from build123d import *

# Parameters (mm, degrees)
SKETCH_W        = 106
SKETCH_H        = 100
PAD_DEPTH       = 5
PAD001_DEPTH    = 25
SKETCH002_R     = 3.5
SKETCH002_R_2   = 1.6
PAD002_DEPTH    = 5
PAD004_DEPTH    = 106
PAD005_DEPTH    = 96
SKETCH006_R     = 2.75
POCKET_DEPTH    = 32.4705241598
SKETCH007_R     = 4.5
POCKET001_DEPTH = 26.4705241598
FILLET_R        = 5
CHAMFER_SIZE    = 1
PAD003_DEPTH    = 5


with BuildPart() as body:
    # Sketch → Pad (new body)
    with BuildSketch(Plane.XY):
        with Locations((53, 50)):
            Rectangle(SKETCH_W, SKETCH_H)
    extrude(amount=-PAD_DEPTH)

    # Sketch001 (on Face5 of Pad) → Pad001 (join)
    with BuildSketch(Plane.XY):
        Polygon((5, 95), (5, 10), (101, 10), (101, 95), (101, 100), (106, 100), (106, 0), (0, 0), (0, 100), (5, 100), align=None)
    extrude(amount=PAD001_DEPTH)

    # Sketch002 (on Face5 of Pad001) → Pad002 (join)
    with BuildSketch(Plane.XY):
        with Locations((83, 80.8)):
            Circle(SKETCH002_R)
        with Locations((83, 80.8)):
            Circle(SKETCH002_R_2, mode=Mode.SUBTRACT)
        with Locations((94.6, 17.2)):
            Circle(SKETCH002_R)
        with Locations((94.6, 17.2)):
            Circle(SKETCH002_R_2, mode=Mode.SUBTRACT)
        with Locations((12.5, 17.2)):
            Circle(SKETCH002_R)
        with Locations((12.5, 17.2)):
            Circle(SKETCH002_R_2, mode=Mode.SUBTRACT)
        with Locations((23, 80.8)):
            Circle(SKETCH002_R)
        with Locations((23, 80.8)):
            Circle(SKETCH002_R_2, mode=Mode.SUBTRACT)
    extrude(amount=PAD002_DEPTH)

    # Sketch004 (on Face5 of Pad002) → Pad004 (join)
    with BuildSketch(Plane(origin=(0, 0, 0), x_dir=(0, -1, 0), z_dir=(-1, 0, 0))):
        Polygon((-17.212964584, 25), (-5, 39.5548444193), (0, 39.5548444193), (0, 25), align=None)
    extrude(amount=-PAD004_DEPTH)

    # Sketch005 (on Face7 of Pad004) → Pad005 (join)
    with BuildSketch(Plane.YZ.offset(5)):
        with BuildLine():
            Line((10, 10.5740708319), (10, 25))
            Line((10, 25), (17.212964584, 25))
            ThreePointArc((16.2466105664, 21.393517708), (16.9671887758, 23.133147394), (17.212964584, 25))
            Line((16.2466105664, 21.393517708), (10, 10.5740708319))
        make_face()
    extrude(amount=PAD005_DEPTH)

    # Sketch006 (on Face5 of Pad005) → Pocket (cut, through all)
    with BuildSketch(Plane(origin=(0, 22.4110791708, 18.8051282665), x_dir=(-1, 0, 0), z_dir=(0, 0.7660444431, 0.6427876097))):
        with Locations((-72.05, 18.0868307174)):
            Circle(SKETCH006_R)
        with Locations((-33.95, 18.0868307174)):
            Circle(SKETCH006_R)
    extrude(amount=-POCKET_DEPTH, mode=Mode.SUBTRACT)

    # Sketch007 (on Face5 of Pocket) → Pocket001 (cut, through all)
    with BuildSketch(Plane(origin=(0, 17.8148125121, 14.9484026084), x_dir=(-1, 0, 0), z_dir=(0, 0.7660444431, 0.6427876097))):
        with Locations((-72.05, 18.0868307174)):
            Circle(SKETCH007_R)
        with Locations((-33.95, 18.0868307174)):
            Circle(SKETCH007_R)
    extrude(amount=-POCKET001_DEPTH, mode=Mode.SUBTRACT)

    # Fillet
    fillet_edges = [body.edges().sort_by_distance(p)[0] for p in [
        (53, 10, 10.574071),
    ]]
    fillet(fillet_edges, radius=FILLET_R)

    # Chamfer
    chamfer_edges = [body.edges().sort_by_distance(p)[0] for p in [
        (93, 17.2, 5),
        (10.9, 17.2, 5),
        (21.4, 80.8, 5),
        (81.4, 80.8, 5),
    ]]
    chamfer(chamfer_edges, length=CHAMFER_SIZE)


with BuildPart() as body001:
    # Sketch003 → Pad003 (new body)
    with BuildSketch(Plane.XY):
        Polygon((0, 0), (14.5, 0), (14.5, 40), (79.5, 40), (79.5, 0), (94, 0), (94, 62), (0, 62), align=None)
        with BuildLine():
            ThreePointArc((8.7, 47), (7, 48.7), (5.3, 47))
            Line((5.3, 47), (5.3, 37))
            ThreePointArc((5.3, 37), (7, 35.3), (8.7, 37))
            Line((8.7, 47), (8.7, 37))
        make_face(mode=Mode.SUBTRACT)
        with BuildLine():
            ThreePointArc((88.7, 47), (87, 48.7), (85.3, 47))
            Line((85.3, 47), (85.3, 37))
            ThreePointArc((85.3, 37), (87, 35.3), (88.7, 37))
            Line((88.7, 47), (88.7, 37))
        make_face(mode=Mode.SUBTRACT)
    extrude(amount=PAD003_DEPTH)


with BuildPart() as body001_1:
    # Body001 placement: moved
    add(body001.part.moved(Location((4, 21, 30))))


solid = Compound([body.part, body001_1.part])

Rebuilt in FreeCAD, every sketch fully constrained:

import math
import FreeCAD as App
import Part
import Sketcher
from FreeCAD import Vector
Q = App.Units.Quantity


def edges_at(feature, points):
    """Names of the edges that pass closest to the given points."""
    edges = feature.Shape.Edges
    near = lambda p: min(range(len(edges)), key=lambda i: edges[i].distToShape(Part.Vertex(*p))[0])
    return sorted({f"Edge{near(p) + 1}" for p in points})

doc = App.newDocument("Part")
body = doc.addObject("PartDesign::Body", "Body")

sketch1 = doc.addObject("Sketcher::SketchObject", "Sketch")
body.addObject(sketch1)
sketch1.AttachmentSupport = (doc.XY_Plane, [""])
sketch1.MapMode = "FlatFace"
sketch1.addGeometry([
    Part.LineSegment(Vector(0, 100, 0), Vector(0, 0, 0)),
    Part.LineSegment(Vector(0, 0, 0), Vector(106, 0, 0)),
    Part.LineSegment(Vector(106, 0, 0), Vector(106, 100, 0)),
    Part.LineSegment(Vector(106, 100, 0), Vector(0, 100, 0)),
], False)
sketch1.addConstraint([
    Sketcher.Constraint("Coincident", 0, 2, 1, 1),
    Sketcher.Constraint("Coincident", 1, 2, 2, 1),
    Sketcher.Constraint("Coincident", 2, 2, 3, 1),
    Sketcher.Constraint("Coincident", 3, 2, 0, 1),
    Sketcher.Constraint("Vertical", 0),
    Sketcher.Constraint("Horizontal", 1),
    Sketcher.Constraint("Vertical", 2),
    Sketcher.Constraint("Horizontal", 3),
    Sketcher.Constraint("Coincident", 0, 2, -1, 1),
    Sketcher.Constraint("DistanceX", 1, 1, 1, 2, Q("106 mm")),
    Sketcher.Constraint("DistanceY", 0, 2, 0, 1, Q("100 mm")),
])
pad1 = doc.addObject("PartDesign::Pad", "Pad")
body.addObject(pad1)
pad1.Profile = sketch1
pad1.Length = 5
pad1.Reversed = True

sketch2 = doc.addObject("Sketcher::SketchObject", "Sketch001")
body.addObject(sketch2)
sketch2.AttachmentSupport = (doc.XY_Plane, [""])
sketch2.MapMode = "FlatFace"
sketch2.addGeometry([
    Part.LineSegment(Vector(5, 10, 0), Vector(5, 100, 0)),
    Part.LineSegment(Vector(5, 100, 0), Vector(0, 100, 0)),
    Part.LineSegment(Vector(0, 100, 0), Vector(0, 0, 0)),
    Part.LineSegment(Vector(0, 0, 0), Vector(106, 0, 0)),
    Part.LineSegment(Vector(106, 0, 0), Vector(106, 100, 0)),
    Part.LineSegment(Vector(106, 100, 0), Vector(101, 100, 0)),
    Part.LineSegment(Vector(101, 100, 0), Vector(101, 10, 0)),
    Part.LineSegment(Vector(101, 10, 0), Vector(5, 10, 0)),
], False)
sketch2.addConstraint([
    Sketcher.Constraint("Coincident", 0, 2, 1, 1),
    Sketcher.Constraint("Coincident", 1, 2, 2, 1),
    Sketcher.Constraint("Coincident", 2, 2, 3, 1),
    Sketcher.Constraint("Coincident", 3, 2, 4, 1),
    Sketcher.Constraint("Coincident", 4, 2, 5, 1),
    Sketcher.Constraint("Coincident", 5, 2, 6, 1),
    Sketcher.Constraint("Coincident", 6, 2, 7, 1),
    Sketcher.Constraint("Coincident", 7, 2, 0, 1),
    Sketcher.Constraint("Vertical", 0),
    Sketcher.Constraint("Horizontal", 1),
    Sketcher.Constraint("Vertical", 2),
    Sketcher.Constraint("Horizontal", 3),
    Sketcher.Constraint("Vertical", 4),
    Sketcher.Constraint("Horizontal", 5),
    Sketcher.Constraint("Vertical", 6),
    Sketcher.Constraint("Horizontal", 7),
    Sketcher.Constraint("Coincident", 2, 2, -1, 1),
    Sketcher.Constraint("Horizontal", 1, 2, 4, 2),
    Sketcher.Constraint("Equal", 1, 5),
    Sketcher.Constraint("DistanceX", 1, 2, 1, 1, Q("5 mm")),
    Sketcher.Constraint("DistanceX", 3, 1, 3, 2, Q("106 mm")),
    Sketcher.Constraint("DistanceY", 0, 1, 0, 2, Q("90 mm")),
    Sketcher.Constraint("DistanceY", 2, 2, 2, 1, Q("100 mm")),
])
pad2 = doc.addObject("PartDesign::Pad", "Pad001")
body.addObject(pad2)
pad2.Profile = sketch2
pad2.Length = 25

sketch3 = doc.addObject("Sketcher::SketchObject", "Sketch002")
body.addObject(sketch3)
sketch3.AttachmentSupport = (doc.XY_Plane, [""])
sketch3.MapMode = "FlatFace"
sketch3.addGeometry([
    Part.Circle(Vector(83, 80.8, 0), Vector(0, 0, 1), 3.5),
    Part.Circle(Vector(83, 80.8, 0), Vector(0, 0, 1), 1.6),
    Part.Circle(Vector(94.6, 17.2, 0), Vector(0, 0, 1), 3.5),
    Part.Circle(Vector(94.6, 17.2, 0), Vector(0, 0, 1), 1.6),
    Part.Circle(Vector(12.5, 17.2, 0), Vector(0, 0, 1), 3.5),
    Part.Circle(Vector(12.5, 17.2, 0), Vector(0, 0, 1), 1.6),
    Part.Circle(Vector(23, 80.8, 0), Vector(0, 0, 1), 3.5),
    Part.Circle(Vector(23, 80.8, 0), Vector(0, 0, 1), 1.6),
], False)
sketch3.addConstraint([
    Sketcher.Constraint("Coincident", 1, 3, 0, 3),
    Sketcher.Constraint("Coincident", 3, 3, 2, 3),
    Sketcher.Constraint("Coincident", 5, 3, 4, 3),
    Sketcher.Constraint("Coincident", 7, 3, 6, 3),
    Sketcher.Constraint("Equal", 0, 2),
    Sketcher.Constraint("Equal", 1, 3),
    Sketcher.Constraint("Equal", 2, 4),
    Sketcher.Constraint("Equal", 3, 5),
    Sketcher.Constraint("Equal", 4, 6),
    Sketcher.Constraint("Equal", 5, 7),
    Sketcher.Constraint("Horizontal", 3, 3, 4, 3),
    Sketcher.Constraint("Horizontal", 1, 3, 6, 3),
    Sketcher.Constraint("Diameter", 0, Q("7 mm")),
    Sketcher.Constraint("Diameter", 1, Q("3.2 mm")),
    Sketcher.Constraint("DistanceX", -1, 1, 0, 3, Q("83 mm")),
    Sketcher.Constraint("DistanceX", -1, 1, 6, 3, Q("23 mm")),
    Sketcher.Constraint("DistanceY", -1, 1, 0, 3, Q("80.8 mm")),
    Sketcher.Constraint("DistanceX", -1, 1, 2, 3, Q("94.6 mm")),
    Sketcher.Constraint("DistanceY", -1, 1, 2, 3, Q("17.2 mm")),
    Sketcher.Constraint("DistanceX", -1, 1, 4, 3, Q("12.5 mm")),
])
pad3 = doc.addObject("PartDesign::Pad", "Pad002")
body.addObject(pad3)
pad3.Profile = sketch3
pad3.Length = 5

sketch4 = doc.addObject("Sketcher::SketchObject", "Sketch003")
body.addObject(sketch4)
sketch4.AttachmentSupport = (doc.YZ_Plane, [""])
sketch4.MapMode = "FlatFace"
sketch4.addGeometry([
    Part.LineSegment(Vector(5, 40, 0), Vector(17, 25, 0)),
    Part.LineSegment(Vector(17, 25, 0), Vector(0, 25, 0)),
    Part.LineSegment(Vector(0, 25, 0), Vector(0, 40, 0)),
    Part.LineSegment(Vector(0, 40, 0), Vector(5, 40, 0)),
], False)
sketch4.addConstraint([
    Sketcher.Constraint("Coincident", 0, 2, 1, 1),
    Sketcher.Constraint("Coincident", 1, 2, 2, 1),
    Sketcher.Constraint("Coincident", 2, 2, 3, 1),
    Sketcher.Constraint("Coincident", 3, 2, 0, 1),
    Sketcher.Constraint("Horizontal", 1),
    Sketcher.Constraint("Vertical", 2),
    Sketcher.Constraint("Horizontal", 3),
    Sketcher.Constraint("PointOnObject", 1, 2, -2),
    Sketcher.Constraint("DistanceX", 3, 1, 3, 2, Q("5 mm")),
    Sketcher.Constraint("Angle", 0, Q("-50 deg")),
    Sketcher.Constraint("Distance", 0, Q("19 mm")),
    Sketcher.Constraint("DistanceY", -1, 1, 0, 2, Q("25 mm")),
])
pad4 = doc.addObject("PartDesign::Pad", "Pad003")
body.addObject(pad4)
pad4.Profile = sketch4
pad4.Length = 106

sketch5 = doc.addObject("Sketcher::SketchObject", "Sketch004")
body.addObject(sketch5)
sketch5.AttachmentSupport = (doc.YZ_Plane, [""])
sketch5.MapMode = "FlatFace"
sketch5.AttachmentOffset = App.Placement(Vector(0, 0, 5), App.Rotation())
sketch5.addGeometry([
    Part.LineSegment(Vector(10, 25, 0), Vector(10, 10.6, 0)),
    Part.LineSegment(Vector(10, 10.6, 0), Vector(16.2, 21.4, 0)),
    Part.ArcOfCircle(Part.Circle(Vector(10, 25, 0), Vector(0, 0, 1), 7.2), math.radians(-30), math.radians(0)),
    Part.LineSegment(Vector(17.2, 25, 0), Vector(10, 25, 0)),
], False)
sketch5.addConstraint([
    Sketcher.Constraint("Coincident", 0, 2, 1, 1),
    Sketcher.Constraint("Tangent", 1, 2, 2, 1),
    Sketcher.Constraint("Coincident", 2, 2, 3, 1),
    Sketcher.Constraint("Coincident", 3, 2, 0, 1),
    Sketcher.Constraint("Vertical", 0),
    Sketcher.Constraint("Horizontal", 3),
    Sketcher.Constraint("Coincident", 3, 2, 2, 3),
    Sketcher.Constraint("Angle", 1, Q("60 deg")),
    Sketcher.Constraint("DistanceX", -1, 1, 2, 3, Q("10 mm")),
    Sketcher.Constraint("DistanceY", -1, 1, 2, 3, Q("25 mm")),
    Sketcher.Constraint("Radius", 2, Q("7.212965 mm")),
])
pad5 = doc.addObject("PartDesign::Pad", "Pad004")
body.addObject(pad5)
pad5.Profile = sketch5
pad5.Length = 96

sketch6 = doc.addObject("Sketcher::SketchObject", "Sketch005")
body.addObject(sketch6)
sketch6.Placement = App.Placement(Vector(0, 22.411079, 18.805128), App.Rotation(Vector(-1, 0, 0), Vector(0, -0.64278761, 0.766044443), Vector(0, 0.766044443, 0.64278761), "ZXY"))
sketch6.addGeometry([
    Part.Circle(Vector(-72, 18.1, 0), Vector(0, 0, 1), 2.8),
    Part.Circle(Vector(-34, 18.1, 0), Vector(0, 0, 1), 2.8),
], False)
sketch6.addConstraint([
    Sketcher.Constraint("Equal", 0, 1),
    Sketcher.Constraint("Horizontal", 0, 3, 1, 3),
    Sketcher.Constraint("Diameter", 0, Q("5.5 mm")),
    Sketcher.Constraint("DistanceX", 0, 3, 1, 3, Q("38.1 mm")),
    Sketcher.Constraint("DistanceX", 0, 3, -1, 1, Q("72.05 mm")),
    Sketcher.Constraint("DistanceY", -1, 1, 0, 3, Q("18.086831 mm")),
])
pocket1 = doc.addObject("PartDesign::Pocket", "Pocket")
body.addObject(pocket1)
pocket1.Profile = sketch6
pocket1.Type = "ThroughAll"

sketch7 = doc.addObject("Sketcher::SketchObject", "Sketch006")
body.addObject(sketch7)
sketch7.Placement = App.Placement(Vector(0, 17.814813, 14.948403), App.Rotation(Vector(-1, 0, 0), Vector(0, -0.64278761, 0.766044443), Vector(0, 0.766044443, 0.64278761), "ZXY"))
sketch7.addGeometry([
    Part.Circle(Vector(-72, 18.1, 0), Vector(0, 0, 1), 4.5),
    Part.Circle(Vector(-34, 18.1, 0), Vector(0, 0, 1), 4.5),
], False)
sketch7.addConstraint([
    Sketcher.Constraint("Equal", 0, 1),
    Sketcher.Constraint("Horizontal", 0, 3, 1, 3),
    Sketcher.Constraint("Diameter", 0, Q("9 mm")),
    Sketcher.Constraint("DistanceX", 0, 3, 1, 3, Q("38.1 mm")),
    Sketcher.Constraint("DistanceX", 0, 3, -1, 1, Q("72.05 mm")),
    Sketcher.Constraint("DistanceY", -1, 1, 0, 3, Q("18.086831 mm")),
])
pocket2 = doc.addObject("PartDesign::Pocket", "Pocket001")
body.addObject(pocket2)
pocket2.Profile = sketch7
pocket2.Type = "ThroughAll"
doc.recompute()

fillet = doc.addObject("PartDesign::Fillet", "Fillet")
body.addObject(fillet)
fillet.Base = (pocket2, edges_at(pocket2, [(53, 10, 10.574)]))
fillet.Radius = 5
doc.recompute()

chamfer = doc.addObject("PartDesign::Chamfer", "Chamfer")
body.addObject(chamfer)
chamfer.Base = (fillet, edges_at(fillet, [
    (93, 17.2, 5),
    (10.9, 17.2, 5),
    (21.4, 80.8, 5),
    (81.4, 80.8, 5),
]))
chamfer.Size = 1
body2 = doc.addObject("PartDesign::Body", "Body001")

sketch8 = doc.addObject("Sketcher::SketchObject", "Sketch007")
body2.addObject(sketch8)
sketch8.AttachmentSupport = (doc.getObject("XY_Plane001"), [""])
sketch8.MapMode = "FlatFace"
sketch8.addGeometry([
    Part.LineSegment(Vector(0, 0, 0), Vector(14.5, 0, 0)),
    Part.LineSegment(Vector(14.5, 0, 0), Vector(14.5, 40, 0)),
    Part.LineSegment(Vector(14.5, 40, 0), Vector(79.5, 40, 0)),
    Part.LineSegment(Vector(79.5, 40, 0), Vector(79.5, 0, 0)),
    Part.LineSegment(Vector(79.5, 0, 0), Vector(94, 0, 0)),
    Part.LineSegment(Vector(94, 0, 0), Vector(94, 62, 0)),
    Part.LineSegment(Vector(94, 62, 0), Vector(0, 62, 0)),
    Part.LineSegment(Vector(0, 62, 0), Vector(0, 0, 0)),
    Part.ArcOfCircle(Part.Circle(Vector(7, 47, 0), Vector(0, 0, 1), 1.7), math.radians(0), math.radians(180)),
    Part.LineSegment(Vector(8.7, 47, 0), Vector(8.7, 37, 0)),
    Part.ArcOfCircle(Part.Circle(Vector(7, 37, 0), Vector(0, 0, 1), 1.7), math.radians(180), math.radians(360)),
    Part.LineSegment(Vector(5.3, 37, 0), Vector(5.3, 47, 0)),
    Part.ArcOfCircle(Part.Circle(Vector(87, 47, 0), Vector(0, 0, 1), 1.7), math.radians(0), math.radians(180)),
    Part.LineSegment(Vector(88.7, 47, 0), Vector(88.7, 37, 0)),
    Part.ArcOfCircle(Part.Circle(Vector(87, 37, 0), Vector(0, 0, 1), 1.7), math.radians(180), math.radians(360)),
    Part.LineSegment(Vector(85.3, 37, 0), Vector(85.3, 47, 0)),
], False)
sketch8.addConstraint([
    Sketcher.Constraint("Coincident", 0, 2, 1, 1),
    Sketcher.Constraint("Coincident", 1, 2, 2, 1),
    Sketcher.Constraint("Coincident", 2, 2, 3, 1),
    Sketcher.Constraint("Coincident", 3, 2, 4, 1),
    Sketcher.Constraint("Coincident", 4, 2, 5, 1),
    Sketcher.Constraint("Coincident", 5, 2, 6, 1),
    Sketcher.Constraint("Coincident", 6, 2, 7, 1),
    Sketcher.Constraint("Coincident", 7, 2, 0, 1),
    Sketcher.Constraint("Tangent", 8, 1, 9, 1),
    Sketcher.Constraint("Tangent", 9, 2, 10, 2),
    Sketcher.Constraint("Tangent", 10, 1, 11, 1),
    Sketcher.Constraint("Tangent", 11, 2, 8, 2),
    Sketcher.Constraint("Tangent", 12, 1, 13, 1),
    Sketcher.Constraint("Tangent", 13, 2, 14, 2),
    Sketcher.Constraint("Tangent", 14, 1, 15, 1),
    Sketcher.Constraint("Tangent", 15, 2, 12, 2),
    Sketcher.Constraint("Horizontal", 0),
    Sketcher.Constraint("Vertical", 1),
    Sketcher.Constraint("Horizontal", 2),
    Sketcher.Constraint("Vertical", 3),
    Sketcher.Constraint("Horizontal", 4),
    Sketcher.Constraint("Vertical", 5),
    Sketcher.Constraint("Horizontal", 6),
    Sketcher.Constraint("Vertical", 7),
    Sketcher.Constraint("Vertical", 9),
    Sketcher.Constraint("Vertical", 11),
    Sketcher.Constraint("Vertical", 13),
    Sketcher.Constraint("Vertical", 15),
    Sketcher.Constraint("Coincident", 7, 2, -1, 1),
    Sketcher.Constraint("Equal", 10, 12),
    Sketcher.Constraint("PointOnObject", 3, 2, -1),
    Sketcher.Constraint("Horizontal", 8, 3, 12, 3),
    Sketcher.Constraint("Horizontal", 10, 3, 14, 3),
    Sketcher.Constraint("Equal", 0, 4),
    Sketcher.Constraint("Radius", 8, Q("1.7 mm")),
    Sketcher.Constraint("DistanceX", 2, 1, 2, 2, Q("65 mm")),
    Sketcher.Constraint("DistanceX", 6, 2, 6, 1, Q("94 mm")),
    Sketcher.Constraint("DistanceY", 1, 1, 1, 2, Q("40 mm")),
    Sketcher.Constraint("DistanceY", 5, 1, 5, 2, Q("62 mm")),
    Sketcher.Constraint("DistanceY", 9, 2, 9, 1, Q("10 mm")),
    Sketcher.Constraint("DistanceX", -1, 1, 8, 3, Q("7 mm")),
    Sketcher.Constraint("DistanceY", -1, 1, 8, 3, Q("47 mm")),
    Sketcher.Constraint("DistanceX", -1, 1, 12, 3, Q("87 mm")),
])
pad6 = doc.addObject("PartDesign::Pad", "Pad005")
body2.addObject(pad6)
pad6.Profile = sketch8
pad6.Length = 5
body3 = doc.addObject("PartDesign::Body", "Body002")
doc.recompute()

body2.Placement = App.Placement(Vector(4, 21, 30), App.Rotation(Vector(0, 0, 1), 0))
boolean = doc.addObject("PartDesign::Boolean", "Boolean")
body3.addObject(boolean)
boolean.Type = "Fuse"
boolean.addObjects([body2])

doc.recompute()
